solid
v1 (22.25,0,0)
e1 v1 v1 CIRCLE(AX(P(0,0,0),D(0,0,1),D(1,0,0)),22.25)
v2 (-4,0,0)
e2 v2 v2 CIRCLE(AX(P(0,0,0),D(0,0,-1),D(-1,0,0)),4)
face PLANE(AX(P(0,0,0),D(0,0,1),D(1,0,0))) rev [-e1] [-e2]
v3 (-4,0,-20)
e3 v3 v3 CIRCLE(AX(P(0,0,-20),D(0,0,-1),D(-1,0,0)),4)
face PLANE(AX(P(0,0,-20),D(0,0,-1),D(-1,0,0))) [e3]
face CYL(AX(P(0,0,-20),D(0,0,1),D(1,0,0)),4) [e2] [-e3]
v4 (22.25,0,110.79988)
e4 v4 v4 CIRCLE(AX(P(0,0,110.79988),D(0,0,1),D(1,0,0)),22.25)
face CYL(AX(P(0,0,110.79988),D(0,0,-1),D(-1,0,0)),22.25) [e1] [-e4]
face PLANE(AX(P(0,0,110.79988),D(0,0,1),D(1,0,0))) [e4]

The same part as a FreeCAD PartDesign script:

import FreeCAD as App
import Part
import Sketcher

doc = App.newDocument("Part")
body = doc.addObject("PartDesign::Body", "Body")

# Sketch on XY plane
sketch1 = body.newObject("Sketcher::SketchObject", "Sketch")
sketch1.AttachmentSupport = (doc.getObject("XY_Plane"), [""])
sketch1.MapMode = "FlatFace"
sketch1.addGeometry(Part.Circle(App.Vector(0, 0, 0), App.Vector(0, 0, 1), 22), False)
sketch1.addConstraint([
    Sketcher.Constraint("Coincident", 0, 3, -1, 1),
    Sketcher.Constraint("Diameter", 0, 44.5),
])
pad1 = body.newObject("PartDesign::Pad", "Pad")
pad1.Profile = sketch1
pad1.Length = 110.79988

# Sketch on XY plane
sketch2 = body.newObject("Sketcher::SketchObject", "Sketch001")
sketch2.AttachmentSupport = (doc.getObject("XY_Plane"), [""])
sketch2.MapMode = "FlatFace"
sketch2.addGeometry(Part.Circle(App.Vector(0, 0, 0), App.Vector(0, 0, 1), 4), False)
sketch2.addConstraint([
    Sketcher.Constraint("Coincident", 0, 3, -1, 1),
    Sketcher.Constraint("Diameter", 0, 8.0),
])
pad2 = body.newObject("PartDesign::Pad", "Pad001")
pad2.Profile = sketch2
pad2.Length = 20
pad2.Reversed = True

doc.recompute()
